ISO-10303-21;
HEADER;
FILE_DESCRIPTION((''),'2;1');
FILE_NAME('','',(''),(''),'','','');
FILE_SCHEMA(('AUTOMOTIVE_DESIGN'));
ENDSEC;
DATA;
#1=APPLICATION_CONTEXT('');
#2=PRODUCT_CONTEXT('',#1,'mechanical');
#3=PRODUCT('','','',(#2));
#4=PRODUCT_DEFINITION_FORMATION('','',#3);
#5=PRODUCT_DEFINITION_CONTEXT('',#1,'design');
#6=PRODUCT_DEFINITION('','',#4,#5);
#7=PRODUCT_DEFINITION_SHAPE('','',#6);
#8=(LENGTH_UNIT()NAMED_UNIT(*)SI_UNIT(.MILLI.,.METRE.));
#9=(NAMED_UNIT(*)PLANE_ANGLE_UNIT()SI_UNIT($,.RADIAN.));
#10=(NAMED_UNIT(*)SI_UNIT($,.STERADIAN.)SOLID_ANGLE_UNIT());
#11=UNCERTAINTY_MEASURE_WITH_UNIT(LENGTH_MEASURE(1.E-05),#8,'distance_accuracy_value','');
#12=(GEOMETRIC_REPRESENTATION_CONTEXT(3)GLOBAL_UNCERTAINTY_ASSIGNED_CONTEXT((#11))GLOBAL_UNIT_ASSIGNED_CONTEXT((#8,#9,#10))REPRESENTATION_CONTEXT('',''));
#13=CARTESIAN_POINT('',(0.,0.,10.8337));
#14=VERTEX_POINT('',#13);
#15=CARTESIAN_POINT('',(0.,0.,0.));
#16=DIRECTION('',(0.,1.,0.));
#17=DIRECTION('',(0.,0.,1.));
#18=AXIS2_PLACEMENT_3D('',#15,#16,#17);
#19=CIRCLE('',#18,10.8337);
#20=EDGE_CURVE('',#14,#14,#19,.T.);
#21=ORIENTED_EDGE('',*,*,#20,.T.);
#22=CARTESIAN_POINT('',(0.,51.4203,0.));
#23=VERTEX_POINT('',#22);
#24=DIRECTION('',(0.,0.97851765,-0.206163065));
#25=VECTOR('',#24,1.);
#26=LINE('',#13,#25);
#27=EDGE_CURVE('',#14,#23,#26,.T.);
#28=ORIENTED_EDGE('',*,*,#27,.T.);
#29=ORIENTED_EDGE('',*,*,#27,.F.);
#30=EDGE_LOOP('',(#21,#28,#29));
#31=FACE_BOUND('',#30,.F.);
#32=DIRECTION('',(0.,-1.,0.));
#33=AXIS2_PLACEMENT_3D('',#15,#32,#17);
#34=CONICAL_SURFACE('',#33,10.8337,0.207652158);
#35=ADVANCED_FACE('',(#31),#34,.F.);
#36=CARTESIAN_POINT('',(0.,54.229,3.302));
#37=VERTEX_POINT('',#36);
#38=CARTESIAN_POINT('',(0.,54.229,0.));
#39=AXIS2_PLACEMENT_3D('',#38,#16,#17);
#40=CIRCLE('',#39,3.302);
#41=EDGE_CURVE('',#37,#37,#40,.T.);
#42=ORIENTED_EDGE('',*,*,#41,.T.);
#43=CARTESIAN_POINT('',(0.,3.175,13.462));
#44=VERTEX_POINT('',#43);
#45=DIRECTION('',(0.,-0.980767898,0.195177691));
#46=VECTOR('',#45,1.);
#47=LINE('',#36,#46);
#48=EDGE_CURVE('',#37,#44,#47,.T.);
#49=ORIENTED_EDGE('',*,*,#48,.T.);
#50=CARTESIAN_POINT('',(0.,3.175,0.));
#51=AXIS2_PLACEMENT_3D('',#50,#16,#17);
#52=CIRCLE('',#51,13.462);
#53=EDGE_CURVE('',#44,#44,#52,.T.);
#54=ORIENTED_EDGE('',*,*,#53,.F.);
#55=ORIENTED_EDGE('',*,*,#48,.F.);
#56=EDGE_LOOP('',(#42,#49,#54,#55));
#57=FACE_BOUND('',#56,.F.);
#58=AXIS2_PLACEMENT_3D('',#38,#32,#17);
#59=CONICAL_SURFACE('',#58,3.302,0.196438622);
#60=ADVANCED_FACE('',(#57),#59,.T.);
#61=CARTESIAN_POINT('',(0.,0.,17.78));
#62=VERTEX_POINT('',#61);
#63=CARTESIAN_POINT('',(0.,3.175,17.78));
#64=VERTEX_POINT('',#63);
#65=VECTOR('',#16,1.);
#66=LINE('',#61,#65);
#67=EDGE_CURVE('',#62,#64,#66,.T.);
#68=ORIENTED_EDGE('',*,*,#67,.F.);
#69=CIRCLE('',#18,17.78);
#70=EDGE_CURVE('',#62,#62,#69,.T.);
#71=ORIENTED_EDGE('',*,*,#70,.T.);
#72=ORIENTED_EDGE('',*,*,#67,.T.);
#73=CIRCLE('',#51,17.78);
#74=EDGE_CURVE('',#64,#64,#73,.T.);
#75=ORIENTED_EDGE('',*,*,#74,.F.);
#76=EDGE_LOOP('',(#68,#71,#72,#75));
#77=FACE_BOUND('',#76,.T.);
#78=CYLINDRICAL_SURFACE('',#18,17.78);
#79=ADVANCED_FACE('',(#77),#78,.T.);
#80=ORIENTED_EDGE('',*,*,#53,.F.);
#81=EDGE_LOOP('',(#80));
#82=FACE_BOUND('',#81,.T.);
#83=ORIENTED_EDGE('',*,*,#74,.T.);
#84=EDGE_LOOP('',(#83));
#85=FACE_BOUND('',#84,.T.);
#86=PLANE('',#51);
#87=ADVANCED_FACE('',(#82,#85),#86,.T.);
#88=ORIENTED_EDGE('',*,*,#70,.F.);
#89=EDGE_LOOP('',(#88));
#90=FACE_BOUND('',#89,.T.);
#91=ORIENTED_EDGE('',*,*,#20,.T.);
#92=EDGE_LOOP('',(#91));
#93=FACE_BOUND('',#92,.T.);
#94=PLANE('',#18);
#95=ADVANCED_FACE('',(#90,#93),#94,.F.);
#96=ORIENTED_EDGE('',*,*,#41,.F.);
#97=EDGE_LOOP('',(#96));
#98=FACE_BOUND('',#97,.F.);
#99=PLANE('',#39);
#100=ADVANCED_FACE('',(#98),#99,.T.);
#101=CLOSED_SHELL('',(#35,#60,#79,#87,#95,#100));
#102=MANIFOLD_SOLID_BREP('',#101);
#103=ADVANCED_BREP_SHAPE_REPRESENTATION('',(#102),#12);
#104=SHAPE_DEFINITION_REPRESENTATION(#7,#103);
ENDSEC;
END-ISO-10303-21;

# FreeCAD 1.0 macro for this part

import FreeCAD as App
import Part
import Sketcher

V = App.Vector
Q = App.Units.Quantity

doc = App.newDocument("Part")
body = doc.addObject("PartDesign::Body", "Body")

# Sketch on YZ plane
sketch1 = body.newObject("Sketcher::SketchObject", "Sketch")
sketch1.AttachmentSupport = (doc.getObject("YZ_Plane"), [""])
sketch1.MapMode = "FlatFace"
sketch1.addGeometry([
    Part.LineSegment(V(3.175, 17.78, 0), V(0, 17.78, 0)),  # 0
    Part.LineSegment(V(0, 17.78, 0), V(0, 10.8337, 0)),  # 1
    Part.LineSegment(V(0, 10.8337, 0), V(51.4203, 0, 0)),  # 2
    Part.LineSegment(V(51.4203, 0, 0), V(54.229, 0, 0)),  # 3
    Part.LineSegment(V(54.229, 0, 0), V(54.229, 3.302, 0)),  # 4
    Part.LineSegment(V(54.229, 3.302, 0), V(3.175, 13.462, 0)),  # 5
    Part.LineSegment(V(3.175, 13.462, 0), V(3.175, 17.78, 0)),  # 6
], False)
sketch1.addConstraint([
    Sketcher.Constraint("Coincident", 0, 2, 1, 1),
    Sketcher.Constraint("Coincident", 1, 2, 2, 1),
    Sketcher.Constraint("Coincident", 2, 2, 3, 1),
    Sketcher.Constraint("Coincident", 3, 2, 4, 1),
    Sketcher.Constraint("Coincident", 4, 2, 5, 1),
    Sketcher.Constraint("Coincident", 5, 2, 6, 1),
    Sketcher.Constraint("Coincident", 6, 2, 0, 1),
    Sketcher.Constraint("Horizontal", 0),
    Sketcher.Constraint("Vertical", 1),
    Sketcher.Constraint("Horizontal", 3),
    Sketcher.Constraint("Vertical", 4),
    Sketcher.Constraint("Vertical", 6),
    Sketcher.Constraint("PointOnObject", 0, 2, -2),
    Sketcher.Constraint("PointOnObject", 2, 2, -1),
    Sketcher.Constraint("DistanceY", 4, 1, 4, 2, Q("0.13 in")),
    Sketcher.Constraint("DistanceY", 6, 1, 6, 2, Q("0.17 in")),
    Sketcher.Constraint("DistanceY", -1, 1, 0, 2, Q("0.7 in")),
    Sketcher.Constraint("DistanceX", 0, 2, 0, 1, Q("0.125 in")),
    Sketcher.Constraint("DistanceX", -1, 1, 3, 2, Q("2.135 in")),
    Sketcher.Constraint("DistanceX", 3, 1, 3, 2, 2.8087),
    Sketcher.Constraint("DistanceY", 1, 2, 1, 1, 6.9463),
])
revolution = body.newObject("PartDesign::Revolution", "Revolution")
revolution.Profile = sketch1
revolution.ReferenceAxis = (sketch1, ["H_Axis"])
revolution.Angle = 360

doc.recompute()
